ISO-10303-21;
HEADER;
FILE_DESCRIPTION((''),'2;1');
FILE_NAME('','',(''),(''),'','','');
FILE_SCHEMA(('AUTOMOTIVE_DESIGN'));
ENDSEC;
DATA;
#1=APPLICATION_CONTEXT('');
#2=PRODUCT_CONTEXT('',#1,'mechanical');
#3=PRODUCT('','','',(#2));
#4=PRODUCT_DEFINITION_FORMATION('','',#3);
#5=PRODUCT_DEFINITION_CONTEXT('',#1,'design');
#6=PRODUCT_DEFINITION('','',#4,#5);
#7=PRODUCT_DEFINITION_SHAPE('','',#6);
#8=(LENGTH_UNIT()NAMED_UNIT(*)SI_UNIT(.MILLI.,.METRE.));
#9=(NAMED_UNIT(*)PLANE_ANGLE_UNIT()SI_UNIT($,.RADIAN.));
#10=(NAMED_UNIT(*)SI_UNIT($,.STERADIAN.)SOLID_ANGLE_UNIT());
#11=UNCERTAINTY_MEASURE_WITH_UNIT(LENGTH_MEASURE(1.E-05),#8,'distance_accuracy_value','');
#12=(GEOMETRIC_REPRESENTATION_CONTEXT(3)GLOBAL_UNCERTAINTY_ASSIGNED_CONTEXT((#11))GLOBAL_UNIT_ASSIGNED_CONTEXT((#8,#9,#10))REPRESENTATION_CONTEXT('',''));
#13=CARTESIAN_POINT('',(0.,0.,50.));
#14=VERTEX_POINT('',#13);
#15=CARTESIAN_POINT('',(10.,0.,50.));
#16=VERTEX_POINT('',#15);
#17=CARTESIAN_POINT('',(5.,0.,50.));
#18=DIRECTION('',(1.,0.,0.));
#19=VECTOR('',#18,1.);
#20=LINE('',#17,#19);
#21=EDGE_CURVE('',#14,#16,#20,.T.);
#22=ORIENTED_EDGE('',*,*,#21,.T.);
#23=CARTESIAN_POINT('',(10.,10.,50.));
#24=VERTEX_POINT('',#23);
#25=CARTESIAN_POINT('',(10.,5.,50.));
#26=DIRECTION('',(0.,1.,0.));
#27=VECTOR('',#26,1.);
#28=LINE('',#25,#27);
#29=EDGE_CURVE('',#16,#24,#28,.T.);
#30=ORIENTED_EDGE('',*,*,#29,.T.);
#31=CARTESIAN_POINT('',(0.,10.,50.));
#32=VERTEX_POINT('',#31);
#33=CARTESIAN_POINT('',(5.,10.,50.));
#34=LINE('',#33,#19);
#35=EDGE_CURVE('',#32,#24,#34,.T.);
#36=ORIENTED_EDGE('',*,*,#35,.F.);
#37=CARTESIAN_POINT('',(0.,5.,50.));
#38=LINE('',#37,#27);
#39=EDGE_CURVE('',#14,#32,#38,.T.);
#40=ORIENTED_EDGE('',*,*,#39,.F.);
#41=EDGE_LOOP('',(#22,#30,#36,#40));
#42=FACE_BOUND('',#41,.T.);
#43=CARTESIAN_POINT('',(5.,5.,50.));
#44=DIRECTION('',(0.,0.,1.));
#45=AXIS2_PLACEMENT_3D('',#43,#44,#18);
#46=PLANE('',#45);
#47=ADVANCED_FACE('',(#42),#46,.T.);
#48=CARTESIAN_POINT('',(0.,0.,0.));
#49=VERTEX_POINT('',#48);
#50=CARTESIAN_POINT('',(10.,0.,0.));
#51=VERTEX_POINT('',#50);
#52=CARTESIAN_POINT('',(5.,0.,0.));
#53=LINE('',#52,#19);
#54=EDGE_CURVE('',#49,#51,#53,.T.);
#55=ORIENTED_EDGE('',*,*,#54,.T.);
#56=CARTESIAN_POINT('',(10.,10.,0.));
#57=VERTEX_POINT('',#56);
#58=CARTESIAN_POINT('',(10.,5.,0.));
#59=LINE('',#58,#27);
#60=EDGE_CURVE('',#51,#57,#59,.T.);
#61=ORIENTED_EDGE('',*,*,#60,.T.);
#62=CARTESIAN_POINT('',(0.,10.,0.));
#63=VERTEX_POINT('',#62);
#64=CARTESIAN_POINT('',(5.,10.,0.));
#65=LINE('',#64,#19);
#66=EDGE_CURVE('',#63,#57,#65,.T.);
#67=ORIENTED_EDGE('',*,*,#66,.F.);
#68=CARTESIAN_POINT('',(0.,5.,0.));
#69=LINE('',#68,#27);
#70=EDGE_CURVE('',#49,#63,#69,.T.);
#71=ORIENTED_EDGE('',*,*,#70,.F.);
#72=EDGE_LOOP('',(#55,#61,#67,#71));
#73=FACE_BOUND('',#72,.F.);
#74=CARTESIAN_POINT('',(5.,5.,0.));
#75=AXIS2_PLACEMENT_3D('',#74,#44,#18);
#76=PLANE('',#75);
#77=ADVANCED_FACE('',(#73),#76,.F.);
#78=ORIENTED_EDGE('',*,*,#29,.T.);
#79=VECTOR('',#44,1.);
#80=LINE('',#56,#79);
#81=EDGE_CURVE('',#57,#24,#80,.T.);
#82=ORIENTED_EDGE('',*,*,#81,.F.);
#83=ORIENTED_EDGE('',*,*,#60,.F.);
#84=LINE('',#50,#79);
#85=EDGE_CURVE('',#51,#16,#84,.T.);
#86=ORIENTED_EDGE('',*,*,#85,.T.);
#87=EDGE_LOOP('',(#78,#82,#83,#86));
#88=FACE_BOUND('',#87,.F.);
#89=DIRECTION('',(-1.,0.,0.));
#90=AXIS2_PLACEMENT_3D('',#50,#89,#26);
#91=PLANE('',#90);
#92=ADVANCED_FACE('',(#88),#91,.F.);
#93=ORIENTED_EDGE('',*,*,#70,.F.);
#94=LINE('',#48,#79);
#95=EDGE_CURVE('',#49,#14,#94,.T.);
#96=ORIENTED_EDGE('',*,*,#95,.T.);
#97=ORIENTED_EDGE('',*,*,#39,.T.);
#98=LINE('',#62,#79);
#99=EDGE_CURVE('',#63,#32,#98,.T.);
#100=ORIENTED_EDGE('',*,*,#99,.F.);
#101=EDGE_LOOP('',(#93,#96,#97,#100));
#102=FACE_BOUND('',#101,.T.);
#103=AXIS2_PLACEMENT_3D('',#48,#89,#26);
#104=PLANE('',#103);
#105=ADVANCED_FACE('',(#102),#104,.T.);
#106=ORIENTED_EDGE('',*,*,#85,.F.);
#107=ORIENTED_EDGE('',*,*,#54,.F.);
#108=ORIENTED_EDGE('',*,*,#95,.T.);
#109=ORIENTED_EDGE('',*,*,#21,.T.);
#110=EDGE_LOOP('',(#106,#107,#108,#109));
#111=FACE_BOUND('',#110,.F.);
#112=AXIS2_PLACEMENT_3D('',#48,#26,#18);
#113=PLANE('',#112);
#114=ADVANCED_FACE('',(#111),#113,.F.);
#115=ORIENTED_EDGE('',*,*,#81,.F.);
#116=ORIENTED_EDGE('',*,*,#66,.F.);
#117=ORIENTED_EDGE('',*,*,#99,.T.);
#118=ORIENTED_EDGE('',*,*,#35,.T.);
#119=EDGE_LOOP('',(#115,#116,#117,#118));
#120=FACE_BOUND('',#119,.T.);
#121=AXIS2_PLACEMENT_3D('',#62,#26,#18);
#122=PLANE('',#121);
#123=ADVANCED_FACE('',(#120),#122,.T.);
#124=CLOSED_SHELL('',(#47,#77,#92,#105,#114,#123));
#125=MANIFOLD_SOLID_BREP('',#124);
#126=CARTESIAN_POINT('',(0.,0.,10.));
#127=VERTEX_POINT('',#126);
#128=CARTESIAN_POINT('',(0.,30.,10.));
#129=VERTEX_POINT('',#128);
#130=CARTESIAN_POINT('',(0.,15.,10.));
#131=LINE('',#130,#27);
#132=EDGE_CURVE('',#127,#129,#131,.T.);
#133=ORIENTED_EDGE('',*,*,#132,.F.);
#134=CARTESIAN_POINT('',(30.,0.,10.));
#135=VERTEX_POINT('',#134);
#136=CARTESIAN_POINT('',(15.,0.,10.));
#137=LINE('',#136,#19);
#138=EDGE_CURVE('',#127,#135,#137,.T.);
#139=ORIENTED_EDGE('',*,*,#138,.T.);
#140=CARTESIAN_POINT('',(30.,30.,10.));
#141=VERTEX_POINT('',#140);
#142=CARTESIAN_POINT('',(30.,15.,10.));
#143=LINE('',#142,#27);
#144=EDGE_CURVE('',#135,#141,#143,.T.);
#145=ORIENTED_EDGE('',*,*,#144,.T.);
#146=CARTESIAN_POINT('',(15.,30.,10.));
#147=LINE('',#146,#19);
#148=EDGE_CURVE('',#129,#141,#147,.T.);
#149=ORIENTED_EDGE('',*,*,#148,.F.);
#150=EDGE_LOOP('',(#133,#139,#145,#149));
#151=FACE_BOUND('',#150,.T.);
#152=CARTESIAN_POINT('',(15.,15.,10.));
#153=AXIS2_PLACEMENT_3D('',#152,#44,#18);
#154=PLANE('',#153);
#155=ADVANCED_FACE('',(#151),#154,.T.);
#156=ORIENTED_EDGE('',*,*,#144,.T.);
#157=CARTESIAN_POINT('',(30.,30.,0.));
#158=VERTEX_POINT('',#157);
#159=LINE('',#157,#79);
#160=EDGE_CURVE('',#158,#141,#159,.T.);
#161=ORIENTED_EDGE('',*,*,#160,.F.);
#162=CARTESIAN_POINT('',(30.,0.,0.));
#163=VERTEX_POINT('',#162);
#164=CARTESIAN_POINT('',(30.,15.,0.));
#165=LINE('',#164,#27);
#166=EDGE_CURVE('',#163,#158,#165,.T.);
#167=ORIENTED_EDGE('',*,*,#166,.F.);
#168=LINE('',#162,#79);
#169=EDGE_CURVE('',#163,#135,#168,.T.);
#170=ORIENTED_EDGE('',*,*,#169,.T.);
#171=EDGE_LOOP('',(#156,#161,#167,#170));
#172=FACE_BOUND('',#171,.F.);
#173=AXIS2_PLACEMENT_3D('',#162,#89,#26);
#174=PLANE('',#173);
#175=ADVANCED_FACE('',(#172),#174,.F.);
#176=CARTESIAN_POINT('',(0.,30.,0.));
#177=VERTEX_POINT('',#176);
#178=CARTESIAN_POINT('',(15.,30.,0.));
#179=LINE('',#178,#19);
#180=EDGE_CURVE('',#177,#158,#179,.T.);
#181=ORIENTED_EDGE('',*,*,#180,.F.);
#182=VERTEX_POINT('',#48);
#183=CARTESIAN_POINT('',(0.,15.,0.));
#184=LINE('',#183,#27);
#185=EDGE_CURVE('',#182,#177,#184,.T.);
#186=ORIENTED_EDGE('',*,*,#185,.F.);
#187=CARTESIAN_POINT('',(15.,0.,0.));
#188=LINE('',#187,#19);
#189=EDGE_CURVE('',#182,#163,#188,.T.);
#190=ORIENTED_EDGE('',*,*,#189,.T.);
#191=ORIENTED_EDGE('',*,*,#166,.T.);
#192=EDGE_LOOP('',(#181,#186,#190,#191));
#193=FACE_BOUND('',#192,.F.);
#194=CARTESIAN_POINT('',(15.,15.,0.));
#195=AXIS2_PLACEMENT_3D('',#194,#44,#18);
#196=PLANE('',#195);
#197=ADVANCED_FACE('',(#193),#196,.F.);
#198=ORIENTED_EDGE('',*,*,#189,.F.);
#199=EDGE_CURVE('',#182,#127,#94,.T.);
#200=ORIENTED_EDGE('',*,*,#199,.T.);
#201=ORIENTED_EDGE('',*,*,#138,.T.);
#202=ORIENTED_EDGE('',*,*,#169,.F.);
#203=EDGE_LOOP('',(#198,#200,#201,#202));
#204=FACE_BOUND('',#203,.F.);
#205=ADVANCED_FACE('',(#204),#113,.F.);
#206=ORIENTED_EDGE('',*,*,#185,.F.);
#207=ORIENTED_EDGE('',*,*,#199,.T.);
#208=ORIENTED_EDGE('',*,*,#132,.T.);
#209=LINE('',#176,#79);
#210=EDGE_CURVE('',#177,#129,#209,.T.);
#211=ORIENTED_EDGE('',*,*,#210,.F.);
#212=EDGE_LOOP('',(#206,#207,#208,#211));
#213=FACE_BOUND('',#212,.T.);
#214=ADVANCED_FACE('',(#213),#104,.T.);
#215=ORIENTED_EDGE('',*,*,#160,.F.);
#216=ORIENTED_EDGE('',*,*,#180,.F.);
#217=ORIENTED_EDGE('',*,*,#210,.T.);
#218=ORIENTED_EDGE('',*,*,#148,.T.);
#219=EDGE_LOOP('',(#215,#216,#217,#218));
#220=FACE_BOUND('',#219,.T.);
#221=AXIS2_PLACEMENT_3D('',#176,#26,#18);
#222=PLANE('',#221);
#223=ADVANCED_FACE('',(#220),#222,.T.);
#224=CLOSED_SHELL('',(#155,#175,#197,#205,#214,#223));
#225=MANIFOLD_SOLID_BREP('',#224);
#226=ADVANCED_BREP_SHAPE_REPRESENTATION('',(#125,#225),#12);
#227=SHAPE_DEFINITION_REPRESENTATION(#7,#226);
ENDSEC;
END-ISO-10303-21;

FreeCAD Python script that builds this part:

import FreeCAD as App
import Part
import Sketcher

V = App.Vector


def add_polygon(sketch, points):
    """Adds a closed chain of lines whose ends are joined by coincident constraints."""
    first, n = sketch.GeometryCount, len(points)
    for a, b in zip(points, points[1:] + points[:1]):
        sketch.addGeometry(Part.LineSegment(App.Vector(*a, 0), App.Vector(*b, 0)), False)
    for i in range(n):
        sketch.addConstraint(Sketcher.Constraint("Coincident", first + i, 2, first + (i + 1) % n, 1))

doc = App.newDocument("Part")
params = doc.addObject("Spreadsheet::Sheet", "Params")
for row, (alias, value) in enumerate([
    ("sketch1_width", "10 mm"),
    ("pad1_length", "50 mm"),
    ("sketch2_width", "30 mm"),
    ("pad2_length", "10 mm"),
], start=1):
    params.set(f"A{row}", alias)
    params.set(f"B{row}", "=" + value)
    params.setAlias(f"B{row}", alias)

body = doc.addObject("PartDesign::Body", "Body")

sketch1 = doc.addObject("Sketcher::SketchObject", "Sketch")
body.addObject(sketch1)
sketch1.AttachmentSupport = (doc.XY_Plane, [""])
sketch1.MapMode = "FlatFace"
add_polygon(sketch1, [(0, 10), (0, 0), (10, 0), (10, 10)])
sketch1.addConstraint([
    Sketcher.Constraint("Vertical", 0),
    Sketcher.Constraint("Horizontal", 1),
    Sketcher.Constraint("Vertical", 2),
    Sketcher.Constraint("Horizontal", 3),
    Sketcher.Constraint("Coincident", 0, 2, -1, 1),
    Sketcher.Constraint("Equal", 3, 0),
    Sketcher.Constraint("DistanceX", 1, 1, 1, 2, 10.0),
])
sketch1.setExpression("Constraints[10]", "Params.sketch1_width")
pad1 = doc.addObject("PartDesign::Pad", "Pad")
body.addObject(pad1)
pad1.Profile = sketch1
pad1.setExpression("Length", "Params.pad1_length")
body2 = doc.addObject("PartDesign::Body", "Body001")

sketch2 = doc.addObject("Sketcher::SketchObject", "Sketch001")
body2.addObject(sketch2)
sketch2.AttachmentSupport = (doc.getObject("XY_Plane001"), [""])
sketch2.MapMode = "FlatFace"
add_polygon(sketch2, [(0, 30), (0, 0), (30, 0), (30, 30)])
sketch2.addConstraint([
    Sketcher.Constraint("Vertical", 0),
    Sketcher.Constraint("Horizontal", 1),
    Sketcher.Constraint("Vertical", 2),
    Sketcher.Constraint("Horizontal", 3),
    Sketcher.Constraint("Coincident", 0, 2, -1, 1),
    Sketcher.Constraint("Equal", 3, 0),
    Sketcher.Constraint("DistanceX", 1, 1, 1, 2, 30.0),
])
sketch2.setExpression("Constraints[10]", "Params.sketch2_width")
pad2 = doc.addObject("PartDesign::Pad", "Pad001")
body2.addObject(pad2)
pad2.Profile = sketch2
pad2.setExpression("Length", "Params.pad2_length")

doc.recompute()
